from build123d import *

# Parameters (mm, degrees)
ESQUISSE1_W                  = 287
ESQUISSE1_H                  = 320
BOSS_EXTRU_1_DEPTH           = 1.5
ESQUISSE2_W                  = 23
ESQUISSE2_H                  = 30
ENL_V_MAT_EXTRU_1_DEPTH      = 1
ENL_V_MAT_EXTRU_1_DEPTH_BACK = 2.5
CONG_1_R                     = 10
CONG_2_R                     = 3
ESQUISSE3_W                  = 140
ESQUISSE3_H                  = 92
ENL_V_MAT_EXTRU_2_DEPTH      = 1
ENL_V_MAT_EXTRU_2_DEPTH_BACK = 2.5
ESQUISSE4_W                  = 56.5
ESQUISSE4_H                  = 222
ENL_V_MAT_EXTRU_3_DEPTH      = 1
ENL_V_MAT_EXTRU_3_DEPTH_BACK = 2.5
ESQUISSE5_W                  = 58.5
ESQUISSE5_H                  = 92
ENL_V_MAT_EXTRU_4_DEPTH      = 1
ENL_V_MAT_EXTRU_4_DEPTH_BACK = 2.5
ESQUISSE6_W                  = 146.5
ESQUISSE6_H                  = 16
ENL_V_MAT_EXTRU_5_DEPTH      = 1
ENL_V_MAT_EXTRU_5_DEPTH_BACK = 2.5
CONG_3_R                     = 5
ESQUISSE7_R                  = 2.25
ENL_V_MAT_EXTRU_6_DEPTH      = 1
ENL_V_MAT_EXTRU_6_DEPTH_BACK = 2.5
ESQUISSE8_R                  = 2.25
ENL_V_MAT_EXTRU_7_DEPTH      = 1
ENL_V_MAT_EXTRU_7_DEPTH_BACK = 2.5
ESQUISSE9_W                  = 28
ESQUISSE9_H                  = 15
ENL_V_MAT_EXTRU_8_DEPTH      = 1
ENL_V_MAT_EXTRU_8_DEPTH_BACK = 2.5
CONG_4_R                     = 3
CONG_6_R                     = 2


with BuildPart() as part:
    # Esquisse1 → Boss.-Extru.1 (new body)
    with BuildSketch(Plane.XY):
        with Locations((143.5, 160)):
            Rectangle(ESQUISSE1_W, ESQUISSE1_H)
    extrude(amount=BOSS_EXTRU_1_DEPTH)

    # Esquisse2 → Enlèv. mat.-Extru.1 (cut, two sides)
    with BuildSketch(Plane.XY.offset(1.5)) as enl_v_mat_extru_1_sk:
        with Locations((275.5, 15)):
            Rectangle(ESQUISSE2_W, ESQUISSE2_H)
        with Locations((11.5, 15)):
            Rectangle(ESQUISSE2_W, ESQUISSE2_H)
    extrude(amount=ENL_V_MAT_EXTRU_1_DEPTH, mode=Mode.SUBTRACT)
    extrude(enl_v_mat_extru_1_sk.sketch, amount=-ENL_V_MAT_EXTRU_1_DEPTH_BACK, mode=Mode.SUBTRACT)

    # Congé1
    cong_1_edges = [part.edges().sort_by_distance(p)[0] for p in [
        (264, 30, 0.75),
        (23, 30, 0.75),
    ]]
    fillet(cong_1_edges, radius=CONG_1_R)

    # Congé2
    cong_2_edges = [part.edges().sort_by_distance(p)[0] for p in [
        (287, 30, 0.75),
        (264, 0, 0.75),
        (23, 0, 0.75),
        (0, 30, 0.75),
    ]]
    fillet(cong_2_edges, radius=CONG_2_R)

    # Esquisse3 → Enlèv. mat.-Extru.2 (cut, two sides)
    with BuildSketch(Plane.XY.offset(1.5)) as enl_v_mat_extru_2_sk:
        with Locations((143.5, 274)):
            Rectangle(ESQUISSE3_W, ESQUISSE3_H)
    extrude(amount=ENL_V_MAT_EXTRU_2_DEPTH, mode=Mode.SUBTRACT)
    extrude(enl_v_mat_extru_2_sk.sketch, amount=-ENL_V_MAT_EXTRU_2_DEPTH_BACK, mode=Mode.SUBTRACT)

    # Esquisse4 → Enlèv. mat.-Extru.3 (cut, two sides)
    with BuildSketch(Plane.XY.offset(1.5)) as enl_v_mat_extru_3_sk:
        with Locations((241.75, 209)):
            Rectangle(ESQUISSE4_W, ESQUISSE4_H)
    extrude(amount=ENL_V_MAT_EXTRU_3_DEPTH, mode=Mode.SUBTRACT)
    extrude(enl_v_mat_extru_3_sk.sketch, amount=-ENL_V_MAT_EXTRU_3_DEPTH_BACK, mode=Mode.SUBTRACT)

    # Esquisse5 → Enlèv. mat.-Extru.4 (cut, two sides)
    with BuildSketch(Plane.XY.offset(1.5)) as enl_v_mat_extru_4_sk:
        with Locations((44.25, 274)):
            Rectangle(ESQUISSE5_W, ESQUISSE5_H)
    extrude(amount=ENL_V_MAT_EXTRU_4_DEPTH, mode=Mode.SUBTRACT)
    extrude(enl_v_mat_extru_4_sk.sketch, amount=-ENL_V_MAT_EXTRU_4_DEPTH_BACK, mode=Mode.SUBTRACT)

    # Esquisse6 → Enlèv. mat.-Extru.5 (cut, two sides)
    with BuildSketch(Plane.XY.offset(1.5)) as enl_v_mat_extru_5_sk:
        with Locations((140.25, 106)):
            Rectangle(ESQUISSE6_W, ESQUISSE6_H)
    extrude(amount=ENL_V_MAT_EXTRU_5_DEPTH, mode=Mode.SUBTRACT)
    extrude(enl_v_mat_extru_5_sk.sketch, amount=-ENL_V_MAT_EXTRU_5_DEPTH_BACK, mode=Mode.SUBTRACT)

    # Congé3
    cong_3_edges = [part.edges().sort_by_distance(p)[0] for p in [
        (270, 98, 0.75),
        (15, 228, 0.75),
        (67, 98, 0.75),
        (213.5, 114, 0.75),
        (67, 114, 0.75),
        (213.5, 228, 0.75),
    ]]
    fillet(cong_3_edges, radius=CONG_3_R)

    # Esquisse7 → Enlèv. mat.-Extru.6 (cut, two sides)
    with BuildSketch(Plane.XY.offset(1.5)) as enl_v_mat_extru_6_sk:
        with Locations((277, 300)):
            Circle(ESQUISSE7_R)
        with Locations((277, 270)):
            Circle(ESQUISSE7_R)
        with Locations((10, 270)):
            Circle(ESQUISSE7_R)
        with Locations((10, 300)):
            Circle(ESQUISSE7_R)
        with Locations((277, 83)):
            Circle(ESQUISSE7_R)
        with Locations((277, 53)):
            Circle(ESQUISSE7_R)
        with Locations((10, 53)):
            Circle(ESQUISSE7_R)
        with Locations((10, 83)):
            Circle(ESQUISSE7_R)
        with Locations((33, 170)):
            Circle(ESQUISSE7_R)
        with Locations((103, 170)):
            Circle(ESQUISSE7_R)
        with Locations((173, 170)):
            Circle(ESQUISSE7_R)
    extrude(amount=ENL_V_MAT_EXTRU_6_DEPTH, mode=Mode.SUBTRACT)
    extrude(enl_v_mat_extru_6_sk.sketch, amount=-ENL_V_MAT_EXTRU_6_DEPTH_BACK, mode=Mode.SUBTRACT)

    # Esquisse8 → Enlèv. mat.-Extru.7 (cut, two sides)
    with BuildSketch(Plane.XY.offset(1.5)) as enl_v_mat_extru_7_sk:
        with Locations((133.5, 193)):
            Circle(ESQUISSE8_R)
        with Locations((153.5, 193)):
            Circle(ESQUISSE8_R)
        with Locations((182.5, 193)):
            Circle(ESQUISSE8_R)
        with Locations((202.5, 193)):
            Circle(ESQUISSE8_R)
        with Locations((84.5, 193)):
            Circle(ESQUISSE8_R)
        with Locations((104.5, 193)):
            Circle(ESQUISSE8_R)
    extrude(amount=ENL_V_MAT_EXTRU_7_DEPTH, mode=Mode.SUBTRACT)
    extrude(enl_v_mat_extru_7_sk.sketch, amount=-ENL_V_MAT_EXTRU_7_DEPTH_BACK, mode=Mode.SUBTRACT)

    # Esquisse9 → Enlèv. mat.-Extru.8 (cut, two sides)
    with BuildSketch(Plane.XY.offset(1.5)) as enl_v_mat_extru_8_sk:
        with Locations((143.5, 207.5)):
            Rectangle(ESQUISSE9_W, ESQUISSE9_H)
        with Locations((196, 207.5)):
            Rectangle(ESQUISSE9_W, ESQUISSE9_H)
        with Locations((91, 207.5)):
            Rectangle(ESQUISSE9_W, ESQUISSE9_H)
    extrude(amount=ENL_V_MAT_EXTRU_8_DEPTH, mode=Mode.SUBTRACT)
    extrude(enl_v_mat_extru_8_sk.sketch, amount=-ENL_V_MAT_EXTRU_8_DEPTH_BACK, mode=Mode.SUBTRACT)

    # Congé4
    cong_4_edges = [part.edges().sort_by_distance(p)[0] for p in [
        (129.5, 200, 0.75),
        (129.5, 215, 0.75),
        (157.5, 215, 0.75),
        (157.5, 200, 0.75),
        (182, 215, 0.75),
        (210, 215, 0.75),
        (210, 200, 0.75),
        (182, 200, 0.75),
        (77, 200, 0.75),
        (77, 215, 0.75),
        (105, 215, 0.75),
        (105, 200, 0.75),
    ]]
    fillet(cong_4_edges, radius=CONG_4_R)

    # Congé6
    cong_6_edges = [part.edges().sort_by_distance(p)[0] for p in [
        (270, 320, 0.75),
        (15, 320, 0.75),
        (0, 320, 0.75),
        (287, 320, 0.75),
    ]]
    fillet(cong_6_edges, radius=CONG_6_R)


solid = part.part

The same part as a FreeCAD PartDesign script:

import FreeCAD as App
import Part
import Sketcher
from FreeCAD import Vector


def edges_at(feature, points):
    """Names of the edges that pass closest to the given points."""
    edges = feature.Shape.Edges
    near = lambda p: min(range(len(edges)), key=lambda i: edges[i].distToShape(Part.Vertex(*p))[0])
    return sorted({f"Edge{near(p) + 1}" for p in points})

doc = App.newDocument("Part")
body = doc.addObject("PartDesign::Body", "Body")

sketch1 = body.newObject("Sketcher::SketchObject", "Sketch")
sketch1.AttachmentSupport = (doc.getObject("XY_Plane"), [""])
sketch1.MapMode = "FlatFace"
sketch1.addGeometry([
    Part.LineSegment(Vector(0, 320, 0), Vector(0, 0, 0)),
    Part.LineSegment(Vector(0, 0, 0), Vector(287, 0, 0)),
    Part.LineSegment(Vector(287, 0, 0), Vector(287, 320, 0)),
    Part.LineSegment(Vector(287, 320, 0), Vector(0, 320, 0)),
], False)
sketch1.addConstraint([
    Sketcher.Constraint("Coincident", 0, 2, 1, 1),
    Sketcher.Constraint("Coincident", 1, 2, 2, 1),
    Sketcher.Constraint("Coincident", 2, 2, 3, 1),
    Sketcher.Constraint("Coincident", 3, 2, 0, 1),
    Sketcher.Constraint("Vertical", 0),
    Sketcher.Constraint("Horizontal", 1),
    Sketcher.Constraint("Vertical", 2),
    Sketcher.Constraint("Horizontal", 3),
    Sketcher.Constraint("Coincident", 0, 2, -1, 1),
    Sketcher.Constraint("DistanceX", 1, 1, 1, 2, 287.0),
    Sketcher.Constraint("DistanceY", 0, 2, 0, 1, 320.0),
])
pad1 = body.newObject("PartDesign::Pad", "Pad")
pad1.Profile = sketch1
pad1.Length = 1.5

sketch2 = body.newObject("Sketcher::SketchObject", "Sketch001")
sketch2.AttachmentSupport = (doc.getObject("XY_Plane"), [""])
sketch2.MapMode = "FlatFace"
sketch2.AttachmentOffset = App.Placement(Vector(0, 0, 1.5), App.Rotation())
sketch2.addGeometry([
    Part.LineSegment(Vector(264, 30, 0), Vector(264, 0, 0)),
    Part.LineSegment(Vector(264, 0, 0), Vector(287, 0, 0)),
    Part.LineSegment(Vector(287, 0, 0), Vector(287, 30, 0)),
    Part.LineSegment(Vector(287, 30, 0), Vector(264, 30, 0)),
    Part.LineSegment(Vector(0, 30, 0), Vector(0, 0, 0)),
    Part.LineSegment(Vector(0, 0, 0), Vector(23, 0, 0)),
    Part.LineSegment(Vector(23, 0, 0), Vector(23, 30, 0)),
    Part.LineSegment(Vector(23, 30, 0), Vector(0, 30, 0)),
], False)
sketch2.addConstraint([
    Sketcher.Constraint("Coincident", 0, 2, 1, 1),
    Sketcher.Constraint("Coincident", 1, 2, 2, 1),
    Sketcher.Constraint("Coincident", 2, 2, 3, 1),
    Sketcher.Constraint("Coincident", 3, 2, 0, 1),
    Sketcher.Constraint("Coincident", 4, 2, 5, 1),
    Sketcher.Constraint("Coincident", 5, 2, 6, 1),
    Sketcher.Constraint("Coincident", 6, 2, 7, 1),
    Sketcher.Constraint("Coincident", 7, 2, 4, 1),
    Sketcher.Constraint("Vertical", 0),
    Sketcher.Constraint("Horizontal", 1),
    Sketcher.Constraint("Vertical", 2),
    Sketcher.Constraint("Horizontal", 3),
    Sketcher.Constraint("Vertical", 4),
    Sketcher.Constraint("Horizontal", 5),
    Sketcher.Constraint("Vertical", 6),
    Sketcher.Constraint("Horizontal", 7),
    Sketcher.Constraint("Coincident", 4, 2, -1, 1),
    Sketcher.Constraint("PointOnObject", 0, 2, -1),
    Sketcher.Constraint("Horizontal", 3, 2, 6, 2),
    Sketcher.Constraint("Equal", 3, 5),
    Sketcher.Constraint("DistanceX", 1, 1, 1, 2, 23.0),
    Sketcher.Constraint("DistanceY", 0, 2, 0, 1, 30.0),
    Sketcher.Constraint("DistanceX", -1, 1, 0, 2, 264.0),
])
pocket1 = body.newObject("PartDesign::Pocket", "Pocket")
pocket1.Profile = sketch2
pocket1.Type = "ThroughAll"
pocket1.Midplane = True
doc.recompute()

fillet = body.newObject("PartDesign::Fillet", "Fillet")
fillet.Base = (pocket1, edges_at(pocket1, [(264, 30, 0.75), (23, 30, 0.75)]))
fillet.Radius = 10
doc.recompute()

fillet2 = body.newObject("PartDesign::Fillet", "Fillet001")
fillet2.Base = (fillet, edges_at(fillet, [
    (287, 30, 0.75),
    (264, 0, 0.75),
    (23, 0, 0.75),
    (0, 30, 0.75),
]))
fillet2.Radius = 3

sketch3 = body.newObject("Sketcher::SketchObject", "Sketch002")
sketch3.AttachmentSupport = (doc.getObject("XY_Plane"), [""])
sketch3.MapMode = "FlatFace"
sketch3.AttachmentOffset = App.Placement(Vector(0, 0, 1.5), App.Rotation())
sketch3.addGeometry([
    Part.LineSegment(Vector(73.5, 320, 0), Vector(73.5, 228, 0)),
    Part.LineSegment(Vector(73.5, 228, 0), Vector(213.5, 228, 0)),
    Part.LineSegment(Vector(213.5, 228, 0), Vector(213.5, 320, 0)),
    Part.LineSegment(Vector(213.5, 320, 0), Vector(73.5, 320, 0)),
], False)
sketch3.addConstraint([
    Sketcher.Constraint("Coincident", 0, 2, 1, 1),
    Sketcher.Constraint("Coincident", 1, 2, 2, 1),
    Sketcher.Constraint("Coincident", 2, 2, 3, 1),
    Sketcher.Constraint("Coincident", 3, 2, 0, 1),
    Sketcher.Constraint("Vertical", 0),
    Sketcher.Constraint("Horizontal", 1),
    Sketcher.Constraint("Vertical", 2),
    Sketcher.Constraint("Horizontal", 3),
    Sketcher.Constraint("DistanceX", 1, 1, 1, 2, 140.0),
    Sketcher.Constraint("DistanceY", 0, 2, 0, 1, 92.0),
    Sketcher.Constraint("DistanceY", -1, 1, 0, 2, 228.0),
    Sketcher.Constraint("DistanceX", -1, 1, 0, 2, 73.5),
])
pocket2 = body.newObject("PartDesign::Pocket", "Pocket001")
pocket2.Profile = sketch3
pocket2.Type = "ThroughAll"
pocket2.Midplane = True

sketch4 = body.newObject("Sketcher::SketchObject", "Sketch003")
sketch4.AttachmentSupport = (doc.getObject("XY_Plane"), [""])
sketch4.MapMode = "FlatFace"
sketch4.AttachmentOffset = App.Placement(Vector(0, 0, 1.5), App.Rotation())
sketch4.addGeometry([
    Part.LineSegment(Vector(213.5, 320, 0), Vector(213.5, 98, 0)),
    Part.LineSegment(Vector(213.5, 98, 0), Vector(270, 98, 0)),
    Part.LineSegment(Vector(270, 98, 0), Vector(270, 320, 0)),
    Part.LineSegment(Vector(270, 320, 0), Vector(213.5, 320, 0)),
], False)
sketch4.addConstraint([
    Sketcher.Constraint("Coincident", 0, 2, 1, 1),
    Sketcher.Constraint("Coincident", 1, 2, 2, 1),
    Sketcher.Constraint("Coincident", 2, 2, 3, 1),
    Sketcher.Constraint("Coincident", 3, 2, 0, 1),
    Sketcher.Constraint("Vertical", 0),
    Sketcher.Constraint("Horizontal", 1),
    Sketcher.Constraint("Vertical", 2),
    Sketcher.Constraint("Horizontal", 3),
    Sketcher.Constraint("DistanceY", 0, 2, 0, 1, 222.0),
    Sketcher.Constraint("DistanceX", 1, 1, 1, 2, 56.5),
    Sketcher.Constraint("DistanceY", -1, 1, 0, 2, 98.0),
    Sketcher.Constraint("DistanceX", -1, 1, 1, 2, 270.0),
])
pocket3 = body.newObject("PartDesign::Pocket", "Pocket002")
pocket3.Profile = sketch4
pocket3.Type = "ThroughAll"
pocket3.Midplane = True

sketch5 = body.newObject("Sketcher::SketchObject", "Sketch004")
sketch5.AttachmentSupport = (doc.getObject("XY_Plane"), [""])
sketch5.MapMode = "FlatFace"
sketch5.AttachmentOffset = App.Placement(Vector(0, 0, 1.5), App.Rotation())
sketch5.addGeometry([
    Part.LineSegment(Vector(15, 320, 0), Vector(15, 228, 0)),
    Part.LineSegment(Vector(15, 228, 0), Vector(73.5, 228, 0)),
    Part.LineSegment(Vector(73.5, 228, 0), Vector(73.5, 320, 0)),
    Part.LineSegment(Vector(73.5, 320, 0), Vector(15, 320, 0)),
], False)
sketch5.addConstraint([
    Sketcher.Constraint("Coincident", 0, 2, 1, 1),
    Sketcher.Constraint("Coincident", 1, 2, 2, 1),
    Sketcher.Constraint("Coincident", 2, 2, 3, 1),
    Sketcher.Constraint("Coincident", 3, 2, 0, 1),
    Sketcher.Constraint("Vertical", 0),
    Sketcher.Constraint("Horizontal", 1),
    Sketcher.Constraint("Vertical", 2),
    Sketcher.Constraint("Horizontal", 3),
    Sketcher.Constraint("DistanceY", 0, 2, 0, 1, 92.0),
    Sketcher.Constraint("DistanceX", 1, 1, 1, 2, 58.5),
    Sketcher.Constraint("DistanceX", -1, 1, 0, 2, 15.0),
    Sketcher.Constraint("DistanceY", -1, 1, 0, 2, 228.0),
])
pocket4 = body.newObject("PartDesign::Pocket", "Pocket003")
pocket4.Profile = sketch5
pocket4.Type = "ThroughAll"
pocket4.Midplane = True

sketch6 = body.newObject("Sketcher::SketchObject", "Sketch005")
sketch6.AttachmentSupport = (doc.getObject("XY_Plane"), [""])
sketch6.MapMode = "FlatFace"
sketch6.AttachmentOffset = App.Placement(Vector(0, 0, 1.5), App.Rotation())
sketch6.addGeometry([
    Part.LineSegment(Vector(67, 114, 0), Vector(67, 98, 0)),
    Part.LineSegment(Vector(67, 98, 0), Vector(213.5, 98, 0)),
    Part.LineSegment(Vector(213.5, 98, 0), Vector(213.5, 114, 0)),
    Part.LineSegment(Vector(213.5, 114, 0), Vector(67, 114, 0)),
], False)
sketch6.addConstraint([
    Sketcher.Constraint("Coincident", 0, 2, 1, 1),
    Sketcher.Constraint("Coincident", 1, 2, 2, 1),
    Sketcher.Constraint("Coincident", 2, 2, 3, 1),
    Sketcher.Constraint("Coincident", 3, 2, 0, 1),
    Sketcher.Constraint("Vertical", 0),
    Sketcher.Constraint("Horizontal", 1),
    Sketcher.Constraint("Vertical", 2),
    Sketcher.Constraint("Horizontal", 3),
    Sketcher.Constraint("DistanceY", 0, 2, 0, 1, 16.0),
    Sketcher.Constraint("DistanceX", 1, 1, 1, 2, 146.5),
    Sketcher.Constraint("DistanceX", -1, 1, 0, 2, 67.0),
    Sketcher.Constraint("DistanceY", -1, 1, 0, 2, 98.0),
])
pocket5 = body.newObject("PartDesign::Pocket", "Pocket004")
pocket5.Profile = sketch6
pocket5.Type = "ThroughAll"
pocket5.Midplane = True
doc.recompute()

fillet3 = body.newObject("PartDesign::Fillet", "Fillet002")
fillet3.Base = (pocket5, edges_at(pocket5, [
    (270, 98, 0.75),
    (15, 228, 0.75),
    (67, 98, 0.75),
    (213.5, 114, 0.75),
    (67, 114, 0.75),
    (213.5, 228, 0.75),
]))
fillet3.Radius = 5

sketch7 = body.newObject("Sketcher::SketchObject", "Sketch006")
sketch7.AttachmentSupport = (doc.getObject("XY_Plane"), [""])
sketch7.MapMode = "FlatFace"
sketch7.AttachmentOffset = App.Placement(Vector(0, 0, 1.5), App.Rotation())
sketch7.addGeometry([
    Part.Circle(Vector(277, 300, 0), Vector(0, 0, 1), 2.25),
    Part.Circle(Vector(277, 270, 0), Vector(0, 0, 1), 2.25),
    Part.Circle(Vector(10, 270, 0), Vector(0, 0, 1), 2.25),
    Part.Circle(Vector(10, 300, 0), Vector(0, 0, 1), 2.25),
    Part.Circle(Vector(277, 83, 0), Vector(0, 0, 1), 2.25),
    Part.Circle(Vector(277, 53, 0), Vector(0, 0, 1), 2.25),
    Part.Circle(Vector(10, 53, 0), Vector(0, 0, 1), 2.25),
    Part.Circle(Vector(10, 83, 0), Vector(0, 0, 1), 2.25),
    Part.Circle(Vector(33, 170, 0), Vector(0, 0, 1), 2.25),
    Part.Circle(Vector(103, 170, 0), Vector(0, 0, 1), 2.25),
    Part.Circle(Vector(173, 170, 0), Vector(0, 0, 1), 2.25),
], False)
sketch7.addConstraint([
    Sketcher.Constraint("Equal", 0, 1),
    Sketcher.Constraint("Equal", 1, 2),
    Sketcher.Constraint("Equal", 2, 3),
    Sketcher.Constraint("Equal", 3, 4),
    Sketcher.Constraint("Equal", 4, 5),
    Sketcher.Constraint("Equal", 5, 6),
    Sketcher.Constraint("Equal", 6, 7),
    Sketcher.Constraint("Equal", 7, 8),
    Sketcher.Constraint("Equal", 8, 9),
    Sketcher.Constraint("Equal", 9, 10),
    Sketcher.Constraint("Horizontal", 1, 3, 2, 3),
    Sketcher.Constraint("Horizontal", 0, 3, 3, 3),
    Sketcher.Constraint("Horizontal", 5, 3, 6, 3),
    Sketcher.Constraint("Horizontal", 4, 3, 7, 3),
    Sketcher.Constraint("Horizontal", 8, 3, 9, 3),
    Sketcher.Constraint("Horizontal", 9, 3, 10, 3),
    Sketcher.Constraint("Vertical", 0, 3, 1, 3),
    Sketcher.Constraint("Vertical", 2, 3, 3, 3),
    Sketcher.Constraint("Vertical", 1, 3, 4, 3),
    Sketcher.Constraint("Vertical", 4, 3, 5, 3),
    Sketcher.Constraint("Vertical", 3, 3, 6, 3),
    Sketcher.Constraint("Vertical", 6, 3, 7, 3),
    Sketcher.Constraint("Diameter", 0, 4.5),
    Sketcher.Constraint("DistanceX", -1, 1, 0, 3, 277.0),
    Sketcher.Constraint("DistanceY", -1, 1, 0, 3, 300.0),
    Sketcher.Constraint("DistanceY", -1, 1, 1, 3, 270.0),
    Sketcher.Constraint("DistanceX", -1, 1, 2, 3, 10.0),
    Sketcher.Constraint("DistanceY", -1, 1, 4, 3, 83.0),
    Sketcher.Constraint("DistanceY", -1, 1, 5, 3, 53.0),
    Sketcher.Constraint("DistanceX", -1, 1, 8, 3, 33.0),
    Sketcher.Constraint("DistanceY", -1, 1, 8, 3, 170.0),
    Sketcher.Constraint("DistanceX", -1, 1, 9, 3, 103.0),
    Sketcher.Constraint("DistanceX", -1, 1, 10, 3, 173.0),
])
pocket6 = body.newObject("PartDesign::Pocket", "Pocket005")
pocket6.Profile = sketch7
pocket6.Type = "ThroughAll"
pocket6.Midplane = True

sketch8 = body.newObject("Sketcher::SketchObject", "Sketch007")
sketch8.AttachmentSupport = (doc.getObject("XY_Plane"), [""])
sketch8.MapMode = "FlatFace"
sketch8.AttachmentOffset = App.Placement(Vector(0, 0, 1.5), App.Rotation())
sketch8.addGeometry([
    Part.Circle(Vector(133.5, 193, 0), Vector(0, 0, 1), 2.25),
    Part.Circle(Vector(153.5, 193, 0), Vector(0, 0, 1), 2.25),
    Part.Circle(Vector(182.5, 193, 0), Vector(0, 0, 1), 2.25),
    Part.Circle(Vector(202.5, 193, 0), Vector(0, 0, 1), 2.25),
    Part.Circle(Vector(84.5, 193, 0), Vector(0, 0, 1), 2.25),
    Part.Circle(Vector(104.5, 193, 0), Vector(0, 0, 1), 2.25),
], False)
sketch8.addConstraint([
    Sketcher.Constraint("Equal", 0, 1),
    Sketcher.Constraint("Equal", 1, 2),
    Sketcher.Constraint("Equal", 2, 3),
    Sketcher.Constraint("Equal", 3, 4),
    Sketcher.Constraint("Equal", 4, 5),
    Sketcher.Constraint("Horizontal", 0, 3, 1, 3),
    Sketcher.Constraint("Horizontal", 1, 3, 2, 3),
    Sketcher.Constraint("Horizontal", 2, 3, 3, 3),
    Sketcher.Constraint("Horizontal", 3, 3, 4, 3),
    Sketcher.Constraint("Horizontal", 4, 3, 5, 3),
    Sketcher.Constraint("Diameter", 0, 4.5),
    Sketcher.Constraint("DistanceY", -1, 1, 0, 3, 193.0),
    Sketcher.Constraint("DistanceX", 0, 3, 1, 3, 20.0),
    Sketcher.Constraint("DistanceX", 1, 3, 2, 3, 29.0),
    Sketcher.Constraint("DistanceX", 2, 3, 3, 3, 20.0),
    Sketcher.Constraint("DistanceX", 4, 3, 0, 3, 49.0),
    Sketcher.Constraint("DistanceX", 4, 3, 5, 3, 20.0),
    Sketcher.Constraint("DistanceX", -1, 1, 0, 3, 133.5),
])
pocket7 = body.newObject("PartDesign::Pocket", "Pocket006")
pocket7.Profile = sketch8
pocket7.Type = "ThroughAll"
pocket7.Midplane = True

sketch9 = body.newObject("Sketcher::SketchObject", "Sketch008")
sketch9.AttachmentSupport = (doc.getObject("XY_Plane"), [""])
sketch9.MapMode = "FlatFace"
sketch9.AttachmentOffset = App.Placement(Vector(0, 0, 1.5), App.Rotation())
sketch9.addGeometry([
    Part.LineSegment(Vector(129.5, 215, 0), Vector(129.5, 200, 0)),
    Part.LineSegment(Vector(129.5, 200, 0), Vector(157.5, 200, 0)),
    Part.LineSegment(Vector(157.5, 200, 0), Vector(157.5, 215, 0)),
    Part.LineSegment(Vector(157.5, 215, 0), Vector(129.5, 215, 0)),
    Part.LineSegment(Vector(182, 215, 0), Vector(182, 200, 0)),
    Part.LineSegment(Vector(182, 200, 0), Vector(210, 200, 0)),
    Part.LineSegment(Vector(210, 200, 0), Vector(210, 215, 0)),
    Part.LineSegment(Vector(210, 215, 0), Vector(182, 215, 0)),
    Part.LineSegment(Vector(77, 215, 0), Vector(77, 200, 0)),
    Part.LineSegment(Vector(77, 200, 0), Vector(105, 200, 0)),
    Part.LineSegment(Vector(105, 200, 0), Vector(105, 215, 0)),
    Part.LineSegment(Vector(105, 215, 0), Vector(77, 215, 0)),
], False)
sketch9.addConstraint([
    Sketcher.Constraint("Coincident", 0, 2, 1, 1),
    Sketcher.Constraint("Coincident", 1, 2, 2, 1),
    Sketcher.Constraint("Coincident", 2, 2, 3, 1),
    Sketcher.Constraint("Coincident", 3, 2, 0, 1),
    Sketcher.Constraint("Coincident", 4, 2, 5, 1),
    Sketcher.Constraint("Coincident", 5, 2, 6, 1),
    Sketcher.Constraint("Coincident", 6, 2, 7, 1),
    Sketcher.Constraint("Coincident", 7, 2, 4, 1),
    Sketcher.Constraint("Coincident", 8, 2, 9, 1),
    Sketcher.Constraint("Coincident", 9, 2, 10, 1),
    Sketcher.Constraint("Coincident", 10, 2, 11, 1),
    Sketcher.Constraint("Coincident", 11, 2, 8, 1),
    Sketcher.Constraint("Vertical", 0),
    Sketcher.Constraint("Horizontal", 1),
    Sketcher.Constraint("Vertical", 2),
    Sketcher.Constraint("Horizontal", 3),
    Sketcher.Constraint("Vertical", 4),
    Sketcher.Constraint("Horizontal", 5),
    Sketcher.Constraint("Vertical", 6),
    Sketcher.Constraint("Horizontal", 7),
    Sketcher.Constraint("Vertical", 8),
    Sketcher.Constraint("Horizontal", 9),
    Sketcher.Constraint("Vertical", 10),
    Sketcher.Constraint("Horizontal", 11),
    Sketcher.Constraint("Horizontal", 1, 2, 4, 2),
    Sketcher.Constraint("Horizontal", 3, 2, 6, 2),
    Sketcher.Constraint("Horizontal", 5, 2, 8, 2),
    Sketcher.Constraint("Horizontal", 7, 2, 10, 2),
    Sketcher.Constraint("Equal", 3, 5),
    Sketcher.Constraint("Equal", 7, 9),
    Sketcher.Constraint("DistanceX", 1, 1, 1, 2, 28.0),
    Sketcher.Constraint("DistanceY", 0, 2, 0, 1, 15.0),
    Sketcher.Constraint("DistanceY", -1, 1, 0, 2, 200.0),
    Sketcher.Constraint("DistanceX", -1, 1, 4, 2, 182.0),
    Sketcher.Constraint("DistanceX", -1, 1, 8, 2, 77.0),
    Sketcher.Constraint("DistanceX", -1, 1, 0, 2, 129.5),
])
pocket8 = body.newObject("PartDesign::Pocket", "Pocket007")
pocket8.Profile = sketch9
pocket8.Type = "ThroughAll"
pocket8.Midplane = True
doc.recompute()

fillet4 = body.newObject("PartDesign::Fillet", "Fillet003")
fillet4.Base = (pocket8, edges_at(pocket8, [
    (129.5, 200, 0.75),
    (129.5, 215, 0.75),
    (157.5, 215, 0.75),
    (157.5, 200, 0.75),
    (182, 215, 0.75),
    (210, 215, 0.75),
    (210, 200, 0.75),
    (182, 200, 0.75),
    (77, 200, 0.75),
    (77, 215, 0.75),
    (105, 215, 0.75),
    (105, 200, 0.75),
]))
fillet4.Radius = 3
doc.recompute()

fillet5 = body.newObject("PartDesign::Fillet", "Fillet004")
fillet5.Base = (fillet4, edges_at(fillet4, [
    (270, 320, 0.75),
    (15, 320, 0.75),
    (0, 320, 0.75),
    (287, 320, 0.75),
]))
fillet5.Radius = 2

doc.recompute()
